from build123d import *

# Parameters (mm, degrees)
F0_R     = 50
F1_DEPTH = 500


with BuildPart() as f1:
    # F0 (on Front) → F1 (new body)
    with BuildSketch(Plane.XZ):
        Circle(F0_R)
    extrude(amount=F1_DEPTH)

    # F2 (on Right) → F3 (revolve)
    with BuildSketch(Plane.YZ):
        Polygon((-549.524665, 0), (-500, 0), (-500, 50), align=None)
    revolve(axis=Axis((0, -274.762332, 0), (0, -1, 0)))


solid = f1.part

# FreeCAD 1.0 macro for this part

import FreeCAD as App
import Part
import Sketcher
Q = App.Units.Quantity

doc = App.newDocument("Part")
params = doc.addObject("Spreadsheet::Sheet", "Params")
for row, (alias, value) in enumerate([
    ("sketch1_diameter", "100 mm"),
    ("pad1_length", "500 mm"),
    ("sketch2_height", "50 mm"),
    ("revolution_angle", "360 deg"),
], start=1):
    params.set(f"A{row}", alias)
    params.set(f"B{row}", "=" + value)
    params.setAlias(f"B{row}", alias)

body = doc.addObject("PartDesign::Body", "Body")

# Sketch on XZ plane
sketch1 = body.newObject("Sketcher::SketchObject", "Sketch")
sketch1.AttachmentSupport = (doc.getObject("XZ_Plane"), [""])
sketch1.MapMode = "FlatFace"
sketch1.addGeometry(Part.Circle(App.Vector(0, 0, 0), App.Vector(0, 0, 1), 50), False)
sketch1.addConstraint(Sketcher.Constraint("Coincident", 0, 3, -1, 1))
sketch1.addConstraint(Sketcher.Constraint("Diameter", 0, Q("100 mm")))
sketch1.setExpression("Constraints[1]", "Params.sketch1_diameter")
pad1 = body.newObject("PartDesign::Pad", "Pad")
pad1.Profile = sketch1
pad1.setExpression("Length", "Params.pad1_length")

# Sketch on YZ plane
sketch2 = body.newObject("Sketcher::SketchObject", "Sketch001")
sketch2.AttachmentSupport = (doc.getObject("YZ_Plane"), [""])
sketch2.MapMode = "FlatFace"
sketch2.addGeometry(Part.LineSegment(App.Vector(-549.524665, 0, 0), App.Vector(-500, 0, 0)), False)
sketch2.addGeometry(Part.LineSegment(App.Vector(-500, 0, 0), App.Vector(-500, 50, 0)), False)
sketch2.addGeometry(Part.LineSegment(App.Vector(-500, 50, 0), App.Vector(-549.524665, 0, 0)), False)
sketch2.addConstraint(Sketcher.Constraint("Coincident", 0, 2, 1, 1))
sketch2.addConstraint(Sketcher.Constraint("Coincident", 1, 2, 2, 1))
sketch2.addConstraint(Sketcher.Constraint("Coincident", 2, 2, 0, 1))
sketch2.addConstraint(Sketcher.Constraint("Horizontal", 0))
sketch2.addConstraint(Sketcher.Constraint("Vertical", 1))
sketch2.addConstraint(Sketcher.Constraint("PointOnObject", 0, 2, -1))
sketch2.addConstraint(Sketcher.Constraint("DistanceY", 1, 1, 1, 2, Q("50 mm")))
sketch2.addConstraint(Sketcher.Constraint("DistanceX", 0, 2, -1, 1, Q("500 mm")))
sketch2.addConstraint(Sketcher.Constraint("Distance", 2, Q("70.375368 mm")))
sketch2.setExpression("Constraints[6]", "Params.sketch2_height")
revolution = body.newObject("PartDesign::Revolution", "Revolution")
revolution.Profile = sketch2
revolution.ReferenceAxis = (sketch2, ["H_Axis"])
revolution.setExpression("Angle", "Params.revolution_angle")

doc.recompute()
